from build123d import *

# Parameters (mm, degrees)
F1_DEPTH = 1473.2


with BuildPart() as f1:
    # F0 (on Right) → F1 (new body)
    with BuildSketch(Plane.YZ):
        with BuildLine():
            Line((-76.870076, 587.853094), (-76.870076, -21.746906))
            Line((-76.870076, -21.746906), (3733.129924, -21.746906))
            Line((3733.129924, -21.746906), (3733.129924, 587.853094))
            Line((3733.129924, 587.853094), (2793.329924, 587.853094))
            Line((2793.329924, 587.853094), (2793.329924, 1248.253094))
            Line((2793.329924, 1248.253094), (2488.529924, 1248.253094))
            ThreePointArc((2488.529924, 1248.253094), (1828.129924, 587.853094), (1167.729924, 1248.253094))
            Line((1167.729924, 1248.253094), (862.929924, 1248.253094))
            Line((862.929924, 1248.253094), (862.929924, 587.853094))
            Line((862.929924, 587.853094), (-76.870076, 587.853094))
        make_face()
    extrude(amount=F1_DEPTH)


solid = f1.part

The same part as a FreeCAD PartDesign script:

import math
import FreeCAD as App
import Part
import Sketcher
from FreeCAD import Vector
Q = App.Units.Quantity

doc = App.newDocument("Part")
body = doc.addObject("PartDesign::Body", "Body")

# Sketch on YZ plane
sketch1 = doc.addObject("Sketcher::SketchObject", "Sketch")
body.addObject(sketch1)
sketch1.AttachmentSupport = (doc.YZ_Plane, [""])
sketch1.MapMode = "FlatFace"
sketch1.addGeometry(Part.LineSegment(Vector(-77, 588, 0), Vector(-77, -22, 0)), False)
sketch1.addGeometry(Part.LineSegment(Vector(-77, -22, 0), Vector(3733, -22, 0)), False)
sketch1.addGeometry(Part.LineSegment(Vector(3733, -22, 0), Vector(3733, 588, 0)), False)
sketch1.addGeometry(Part.LineSegment(Vector(3733, 588, 0), Vector(2793, 588, 0)), False)
sketch1.addGeometry(Part.LineSegment(Vector(2793, 588, 0), Vector(2793, 1248, 0)), False)
sketch1.addGeometry(Part.LineSegment(Vector(2793, 1248, 0), Vector(2489, 1248, 0)), False)
sketch1.addGeometry(Part.ArcOfCircle(Part.Circle(Vector(1828, 1248, 0), Vector(0, 0, 1), 660), math.radians(180), math.radians(360)), False)
sketch1.addGeometry(Part.LineSegment(Vector(1168, 1248, 0), Vector(863, 1248, 0)), False)
sketch1.addGeometry(Part.LineSegment(Vector(863, 1248, 0), Vector(863, 588, 0)), False)
sketch1.addGeometry(Part.LineSegment(Vector(863, 588, 0), Vector(-77, 588, 0)), False)
sketch1.addConstraint(Sketcher.Constraint("Coincident", 0, 2, 1, 1))
sketch1.addConstraint(Sketcher.Constraint("Coincident", 1, 2, 2, 1))
sketch1.addConstraint(Sketcher.Constraint("Coincident", 2, 2, 3, 1))
sketch1.addConstraint(Sketcher.Constraint("Coincident", 3, 2, 4, 1))
sketch1.addConstraint(Sketcher.Constraint("Coincident", 4, 2, 5, 1))
sketch1.addConstraint(Sketcher.Constraint("Coincident", 5, 2, 6, 2))
sketch1.addConstraint(Sketcher.Constraint("Coincident", 6, 1, 7, 1))
sketch1.addConstraint(Sketcher.Constraint("Coincident", 7, 2, 8, 1))
sketch1.addConstraint(Sketcher.Constraint("Coincident", 8, 2, 9, 1))
sketch1.addConstraint(Sketcher.Constraint("Coincident", 9, 2, 0, 1))
sketch1.addConstraint(Sketcher.Constraint("Vertical", 0))
sketch1.addConstraint(Sketcher.Constraint("Horizontal", 1))
sketch1.addConstraint(Sketcher.Constraint("Vertical", 2))
sketch1.addConstraint(Sketcher.Constraint("Horizontal", 3))
sketch1.addConstraint(Sketcher.Constraint("Vertical", 4))
sketch1.addConstraint(Sketcher.Constraint("Horizontal", 5))
sketch1.addConstraint(Sketcher.Constraint("Horizontal", 7))
sketch1.addConstraint(Sketcher.Constraint("Vertical", 8))
sketch1.addConstraint(Sketcher.Constraint("Horizontal", 9))
sketch1.addConstraint(Sketcher.Constraint("Horizontal", 6, 3, 4, 2))
sketch1.addConstraint(Sketcher.Constraint("Horizontal", 3, 2, 8, 2))
sketch1.addConstraint(Sketcher.Constraint("Equal", 5, 7))
sketch1.addConstraint(Sketcher.Constraint("Equal", 3, 9))
sketch1.addConstraint(Sketcher.Constraint("Equal", 4, 8))
sketch1.addConstraint(Sketcher.Constraint("Radius", 6, Q("26 in")))
sketch1.addConstraint(Sketcher.Constraint("DistanceX", 1, 1, 1, 2, Q("150 in")))
sketch1.addConstraint(Sketcher.Constraint("DistanceX", 3, 2, 3, 1, Q("37 in")))
sketch1.addConstraint(Sketcher.Constraint("DistanceY", 0, 2, 0, 1, Q("24 in")))
sketch1.addConstraint(Sketcher.Constraint("DistanceY", 4, 1, 4, 2, Q("26 in")))
sketch1.addConstraint(Sketcher.Constraint("DistanceX", -1, 1, 6, 3, 1828.129924))
sketch1.addConstraint(Sketcher.Constraint("DistanceY", -1, 1, 6, 3, 1248.253094))
pad1 = doc.addObject("PartDesign::Pad", "Pad")
body.addObject(pad1)
pad1.Profile = sketch1
pad1.Length = Q("58 in")

doc.recompute()
